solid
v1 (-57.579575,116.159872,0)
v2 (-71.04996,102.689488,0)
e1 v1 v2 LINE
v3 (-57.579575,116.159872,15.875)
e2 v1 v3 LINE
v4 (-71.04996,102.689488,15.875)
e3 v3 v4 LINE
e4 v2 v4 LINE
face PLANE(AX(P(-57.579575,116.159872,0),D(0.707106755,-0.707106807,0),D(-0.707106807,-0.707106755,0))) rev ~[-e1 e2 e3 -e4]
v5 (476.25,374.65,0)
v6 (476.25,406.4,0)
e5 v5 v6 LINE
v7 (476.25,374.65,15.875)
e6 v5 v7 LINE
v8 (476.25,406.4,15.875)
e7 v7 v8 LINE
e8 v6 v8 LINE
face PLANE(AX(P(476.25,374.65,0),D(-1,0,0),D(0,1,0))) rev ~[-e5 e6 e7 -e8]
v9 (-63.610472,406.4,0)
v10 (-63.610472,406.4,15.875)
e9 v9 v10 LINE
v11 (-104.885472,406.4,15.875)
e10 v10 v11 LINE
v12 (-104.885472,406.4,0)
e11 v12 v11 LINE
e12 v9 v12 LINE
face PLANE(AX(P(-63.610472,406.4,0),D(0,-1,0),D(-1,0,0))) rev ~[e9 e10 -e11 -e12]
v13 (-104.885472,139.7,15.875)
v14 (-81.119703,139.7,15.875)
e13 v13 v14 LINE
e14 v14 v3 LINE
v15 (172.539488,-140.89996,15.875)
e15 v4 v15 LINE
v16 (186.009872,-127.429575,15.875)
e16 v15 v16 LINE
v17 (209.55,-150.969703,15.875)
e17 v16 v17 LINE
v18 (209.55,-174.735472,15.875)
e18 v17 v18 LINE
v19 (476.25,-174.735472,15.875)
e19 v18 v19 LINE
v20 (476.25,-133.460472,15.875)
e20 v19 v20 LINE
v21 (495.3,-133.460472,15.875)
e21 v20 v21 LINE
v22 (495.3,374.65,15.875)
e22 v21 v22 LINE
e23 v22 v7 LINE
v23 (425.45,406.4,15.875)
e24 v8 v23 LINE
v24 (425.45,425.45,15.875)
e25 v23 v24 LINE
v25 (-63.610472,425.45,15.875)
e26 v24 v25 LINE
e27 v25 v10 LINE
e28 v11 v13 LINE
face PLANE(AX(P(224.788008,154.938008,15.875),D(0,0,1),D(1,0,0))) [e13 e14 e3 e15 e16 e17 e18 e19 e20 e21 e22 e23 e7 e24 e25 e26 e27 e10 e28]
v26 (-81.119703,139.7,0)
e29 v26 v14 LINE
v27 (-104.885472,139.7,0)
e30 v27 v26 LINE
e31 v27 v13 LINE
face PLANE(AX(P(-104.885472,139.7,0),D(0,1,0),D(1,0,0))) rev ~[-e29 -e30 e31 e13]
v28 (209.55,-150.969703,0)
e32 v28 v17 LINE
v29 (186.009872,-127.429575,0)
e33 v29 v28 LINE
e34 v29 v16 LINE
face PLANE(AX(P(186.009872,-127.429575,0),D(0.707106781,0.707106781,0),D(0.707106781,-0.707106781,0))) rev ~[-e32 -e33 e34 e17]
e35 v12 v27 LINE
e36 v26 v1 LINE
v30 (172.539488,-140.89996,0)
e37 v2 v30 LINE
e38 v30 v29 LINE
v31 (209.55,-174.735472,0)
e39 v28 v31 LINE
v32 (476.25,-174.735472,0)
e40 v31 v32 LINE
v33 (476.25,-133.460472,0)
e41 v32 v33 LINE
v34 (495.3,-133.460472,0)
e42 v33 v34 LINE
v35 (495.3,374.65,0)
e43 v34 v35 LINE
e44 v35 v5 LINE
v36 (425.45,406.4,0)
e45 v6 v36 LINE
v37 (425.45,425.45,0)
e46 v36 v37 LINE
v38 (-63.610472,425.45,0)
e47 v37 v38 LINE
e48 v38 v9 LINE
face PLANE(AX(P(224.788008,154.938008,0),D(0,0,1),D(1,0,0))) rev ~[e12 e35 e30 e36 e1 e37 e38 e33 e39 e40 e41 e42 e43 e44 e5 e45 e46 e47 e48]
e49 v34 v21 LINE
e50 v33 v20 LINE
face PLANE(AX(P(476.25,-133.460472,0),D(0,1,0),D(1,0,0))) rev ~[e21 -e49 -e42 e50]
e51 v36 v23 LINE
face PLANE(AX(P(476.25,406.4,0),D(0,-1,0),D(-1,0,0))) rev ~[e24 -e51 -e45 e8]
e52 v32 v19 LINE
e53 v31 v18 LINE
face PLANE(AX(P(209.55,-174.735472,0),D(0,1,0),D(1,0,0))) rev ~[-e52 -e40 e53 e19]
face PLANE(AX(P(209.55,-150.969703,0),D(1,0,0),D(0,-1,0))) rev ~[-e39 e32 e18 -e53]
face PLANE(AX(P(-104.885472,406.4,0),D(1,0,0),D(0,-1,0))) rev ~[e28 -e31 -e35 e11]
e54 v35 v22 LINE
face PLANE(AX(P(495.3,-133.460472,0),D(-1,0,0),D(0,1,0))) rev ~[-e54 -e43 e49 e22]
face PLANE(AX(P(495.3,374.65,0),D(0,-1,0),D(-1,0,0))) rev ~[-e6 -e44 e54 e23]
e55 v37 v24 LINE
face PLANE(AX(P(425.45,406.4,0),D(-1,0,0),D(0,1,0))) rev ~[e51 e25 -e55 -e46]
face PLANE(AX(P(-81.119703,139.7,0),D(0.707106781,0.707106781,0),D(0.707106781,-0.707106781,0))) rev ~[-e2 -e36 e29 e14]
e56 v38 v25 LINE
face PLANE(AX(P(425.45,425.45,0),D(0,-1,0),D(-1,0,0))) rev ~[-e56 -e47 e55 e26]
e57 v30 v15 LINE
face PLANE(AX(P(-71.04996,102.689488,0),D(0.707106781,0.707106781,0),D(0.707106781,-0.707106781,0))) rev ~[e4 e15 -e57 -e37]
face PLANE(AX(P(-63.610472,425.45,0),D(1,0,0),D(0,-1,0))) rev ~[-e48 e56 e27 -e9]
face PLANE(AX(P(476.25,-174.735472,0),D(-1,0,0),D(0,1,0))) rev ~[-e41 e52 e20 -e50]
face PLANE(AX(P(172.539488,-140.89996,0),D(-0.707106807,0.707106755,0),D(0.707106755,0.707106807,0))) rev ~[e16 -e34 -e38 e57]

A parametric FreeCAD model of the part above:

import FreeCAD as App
import Part
import Sketcher

V = App.Vector
Q = App.Units.Quantity


def add_polygon(sketch, points):
    """Adds a closed chain of lines whose ends are joined by coincident constraints."""
    first, n = sketch.GeometryCount, len(points)
    for a, b in zip(points, points[1:] + points[:1]):
        sketch.addGeometry(Part.LineSegment(App.Vector(*a, 0), App.Vector(*b, 0)), False)
    for i in range(n):
        sketch.addConstraint(Sketcher.Constraint("Coincident", first + i, 2, first + (i + 1) % n, 1))

doc = App.newDocument("Part")
body = doc.addObject("PartDesign::Body", "Body")

# Sketch on XY plane
sketch1 = body.newObject("Sketcher::SketchObject", "Sketch")
sketch1.AttachmentSupport = (doc.getObject("XY_Plane"), [""])
sketch1.MapMode = "FlatFace"
add_polygon(sketch1, [(-71, 103), (173, -141), (186, -127), (210, -151), (210, -175), (476, -175), (476, -133), (495, -133), (495, 375), (476, 375), (476, 406), (425, 406), (425, 425), (-64, 425), (-64, 406), (-105, 406), (-105, 140), (-81, 140), (-58, 116)])  # lines 0-18
sketch1.addConstraint(Sketcher.Constraint("Vertical", 3))
sketch1.addConstraint(Sketcher.Constraint("Horizontal", 4))
sketch1.addConstraint(Sketcher.Constraint("Vertical", 5))
sketch1.addConstraint(Sketcher.Constraint("Horizontal", 6))
sketch1.addConstraint(Sketcher.Constraint("Vertical", 7))
sketch1.addConstraint(Sketcher.Constraint("Horizontal", 8))
sketch1.addConstraint(Sketcher.Constraint("Vertical", 9))
sketch1.addConstraint(Sketcher.Constraint("Horizontal", 10))
sketch1.addConstraint(Sketcher.Constraint("Vertical", 11))
sketch1.addConstraint(Sketcher.Constraint("Horizontal", 12))
sketch1.addConstraint(Sketcher.Constraint("Vertical", 13))
sketch1.addConstraint(Sketcher.Constraint("Horizontal", 14))
sketch1.addConstraint(Sketcher.Constraint("Vertical", 15))
sketch1.addConstraint(Sketcher.Constraint("Horizontal", 16))
sketch1.addConstraint(Sketcher.Constraint("Perpendicular", 0, 1))
sketch1.addConstraint(Sketcher.Constraint("Perpendicular", 1, 2))
sketch1.addConstraint(Sketcher.Constraint("Parallel", 2, 17))
sketch1.addConstraint(Sketcher.Constraint("Perpendicular", 17, 18))
sketch1.addConstraint(Sketcher.Constraint("Horizontal", 10, 2, 13, 2))
sketch1.addConstraint(Sketcher.Constraint("Vertical", 5, 2, 8, 2))
sketch1.addConstraint(Sketcher.Constraint("Equal", 16, 3))
sketch1.addConstraint(Sketcher.Constraint("Equal", 14, 5))
sketch1.addConstraint(Sketcher.Constraint("Equal", 8, 11))
sketch1.addConstraint(Sketcher.Constraint("Equal", 4, 15))
sketch1.addConstraint(Sketcher.Constraint("Equal", 2, 17))
sketch1.addConstraint(Sketcher.Constraint("Equal", 1, 18))
sketch1.addConstraint(Sketcher.Constraint("DistanceX", 10, 2, 10, 1, Q("2 in")))
sketch1.addConstraint(Sketcher.Constraint("DistanceX", 4, 1, 4, 2, Q("10.5 in")))
sketch1.addConstraint(Sketcher.Constraint("DistanceY", -1, 1, 9, 2, Q("16 in")))
sketch1.addConstraint(Sketcher.Constraint("Angle", 0, Q("-45 deg")))
sketch1.addConstraint(Sketcher.Constraint("DistanceY", 8, 2, 11, 2, Q("2 in")))
sketch1.addConstraint(Sketcher.Constraint("DistanceX", 6, 1, 6, 2, Q("0.75 in")))
sketch1.addConstraint(Sketcher.Constraint("DistanceX", -1, 1, 6, 2, Q("19.5 in")))
sketch1.addConstraint(Sketcher.Constraint("Distance", 1, Q("0.75 in")))
sketch1.addConstraint(Sketcher.Constraint("DistanceX", 14, 2, 14, 1, Q("1.625 in")))
sketch1.addConstraint(Sketcher.Constraint("Distance", 0, Q("13.5625 in")))
sketch1.addConstraint(Sketcher.Constraint("DistanceX", 12, 2, 12, 1, 489.060472))
sketch1.addConstraint(Sketcher.Constraint("DistanceX", 16, 1, 16, 2, 23.765769))
pad1 = body.newObject("PartDesign::Pad", "Pad")
pad1.Profile = sketch1
pad1.Length = Q("0.625 in")

doc.recompute()
